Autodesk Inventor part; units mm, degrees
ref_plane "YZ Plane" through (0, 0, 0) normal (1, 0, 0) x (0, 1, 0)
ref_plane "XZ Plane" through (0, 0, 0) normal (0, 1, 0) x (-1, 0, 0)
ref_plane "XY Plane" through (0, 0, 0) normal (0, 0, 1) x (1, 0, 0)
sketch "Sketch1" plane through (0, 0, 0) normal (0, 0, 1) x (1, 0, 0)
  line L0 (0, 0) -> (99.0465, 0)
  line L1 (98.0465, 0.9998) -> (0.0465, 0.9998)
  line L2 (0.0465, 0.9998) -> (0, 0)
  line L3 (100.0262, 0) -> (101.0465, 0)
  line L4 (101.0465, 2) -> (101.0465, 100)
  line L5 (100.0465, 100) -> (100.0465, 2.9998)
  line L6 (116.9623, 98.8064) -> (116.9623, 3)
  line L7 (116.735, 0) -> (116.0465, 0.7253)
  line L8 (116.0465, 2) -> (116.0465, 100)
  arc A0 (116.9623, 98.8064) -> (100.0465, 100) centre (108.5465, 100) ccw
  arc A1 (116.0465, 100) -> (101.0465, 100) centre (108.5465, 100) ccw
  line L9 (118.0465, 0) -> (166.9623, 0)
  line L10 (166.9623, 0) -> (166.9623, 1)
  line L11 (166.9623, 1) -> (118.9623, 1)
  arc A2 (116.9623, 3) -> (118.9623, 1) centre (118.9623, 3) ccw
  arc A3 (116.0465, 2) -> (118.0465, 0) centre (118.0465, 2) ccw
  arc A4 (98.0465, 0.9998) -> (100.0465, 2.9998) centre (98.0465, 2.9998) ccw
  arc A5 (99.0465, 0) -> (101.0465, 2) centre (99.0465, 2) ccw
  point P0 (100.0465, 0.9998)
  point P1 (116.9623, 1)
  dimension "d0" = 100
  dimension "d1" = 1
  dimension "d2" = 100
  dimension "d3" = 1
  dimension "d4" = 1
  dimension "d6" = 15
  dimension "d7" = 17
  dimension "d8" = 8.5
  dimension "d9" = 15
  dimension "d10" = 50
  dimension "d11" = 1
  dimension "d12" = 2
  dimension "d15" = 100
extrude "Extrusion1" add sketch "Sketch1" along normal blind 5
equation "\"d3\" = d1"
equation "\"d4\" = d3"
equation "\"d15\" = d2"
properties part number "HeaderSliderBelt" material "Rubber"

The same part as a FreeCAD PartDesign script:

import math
import FreeCAD as App
import Part
import Sketcher

V = App.Vector

doc = App.newDocument("Part")
params = doc.addObject("Spreadsheet::Sheet", "Params")
for row, (alias, value) in enumerate([
    ("sketch1_radius", "2 mm"),
    ("sketch1_radius2", "7.5 mm"),
    ("sketch1_radius3", "8.5 mm"),
    ("sketch1_height", "1 mm"),
    ("sketch1_width", "48 mm"),
    ("pad1_length", "5 mm"),
], start=1):
    params.set(f"A{row}", alias)
    params.set(f"B{row}", "=" + value)
    params.setAlias(f"B{row}", alias)

body = doc.addObject("PartDesign::Body", "Body")

sketch1 = doc.addObject("Sketcher::SketchObject", "Sketch")
body.addObject(sketch1)
sketch1.AttachmentSupport = (doc.XY_Plane, [""])
sketch1.MapMode = "FlatFace"
sketch1.addGeometry([
    Part.LineSegment(V(0.0465, 0.9998, 0), V(0, 0, 0)),
    Part.LineSegment(V(0, 0, 0), V(99.0465, 0, 0)),
    Part.ArcOfCircle(Part.Circle(V(99.0465, 2, 0), V(0, 0, 1), 2), math.radians(-90), math.radians(0)),
    Part.LineSegment(V(101.0465, 2, 0), V(101.0465, 100, 0)),
    Part.ArcOfCircle(Part.Circle(V(108.5465, 100, 0), V(0, 0, 1), 7.5), math.radians(0), math.radians(180)),
    Part.LineSegment(V(116.0465, 100, 0), V(116.0465, 2, 0)),
    Part.ArcOfCircle(Part.Circle(V(118.0465, 2, 0), V(0, 0, 1), 2), math.radians(180), math.radians(270)),
    Part.LineSegment(V(118.0465, 0, 0), V(166.9623, 0, 0)),
    Part.LineSegment(V(166.9623, 0, 0), V(166.9623, 1, 0)),
    Part.LineSegment(V(166.9623, 1, 0), V(118.9623, 1, 0)),
    Part.ArcOfCircle(Part.Circle(V(118.9623, 3, 0), V(0, 0, 1), 2), math.radians(180), math.radians(270)),
    Part.LineSegment(V(116.9623, 3, 0), V(116.9623, 98.8064, 0)),
    Part.ArcOfCircle(Part.Circle(V(108.5465, 100, 0), V(0, 0, 1), 8.500022), math.radians(-8.072334), math.radians(180)),
    Part.LineSegment(V(100.0465, 100, 0), V(100.0465, 2.9998, 0)),
    Part.ArcOfCircle(Part.Circle(V(98.0465, 2.9998, 0), V(0, 0, 1), 2), math.radians(-90), math.radians(0)),
    Part.LineSegment(V(98.0465, 0.9998, 0), V(0.0465, 0.9998, 0)),
], False)
sketch1.addConstraint([
    Sketcher.Constraint("Coincident", 0, 2, 1, 1),
    Sketcher.Constraint("Tangent", 1, 2, 2, 1),
    Sketcher.Constraint("Tangent", 2, 2, 3, 1),
    Sketcher.Constraint("Tangent", 3, 2, 4, 2),
    Sketcher.Constraint("Tangent", 4, 1, 5, 1),
    Sketcher.Constraint("Tangent", 5, 2, 6, 1),
    Sketcher.Constraint("Tangent", 6, 2, 7, 1),
    Sketcher.Constraint("Coincident", 7, 2, 8, 1),
    Sketcher.Constraint("Coincident", 8, 2, 9, 1),
    Sketcher.Constraint("Tangent", 9, 2, 10, 2),
    Sketcher.Constraint("Tangent", 10, 1, 11, 1),
    Sketcher.Constraint("Coincident", 11, 2, 12, 1),
    Sketcher.Constraint("Tangent", 12, 2, 13, 1),
    Sketcher.Constraint("Tangent", 13, 2, 14, 2),
    Sketcher.Constraint("Tangent", 14, 1, 15, 1),
    Sketcher.Constraint("Coincident", 15, 2, 0, 1),
    Sketcher.Constraint("Horizontal", 1),
    Sketcher.Constraint("Vertical", 3),
    Sketcher.Constraint("Vertical", 5),
    Sketcher.Constraint("Horizontal", 7),
    Sketcher.Constraint("Vertical", 8),
    Sketcher.Constraint("Horizontal", 9),
    Sketcher.Constraint("Vertical", 11),
    Sketcher.Constraint("Vertical", 13),
    Sketcher.Constraint("Horizontal", 15),
    Sketcher.Constraint("Coincident", 0, 2, -1, 1),
    Sketcher.Constraint("Coincident", 12, 3, 4, 3),
    Sketcher.Constraint("Equal", 2, 6),
    Sketcher.Constraint("Equal", 6, 10),
    Sketcher.Constraint("Equal", 10, 14),
    Sketcher.Constraint("PointOnObject", 6, 2, -1),
    Sketcher.Constraint("Horizontal", 10, 3, 14, 3),
    Sketcher.Constraint("Equal", 15, 3),
    Sketcher.Constraint("Radius", 2, 2.0),
    Sketcher.Constraint("Radius", 4, 7.5),
    Sketcher.Constraint("Radius", 12, 8.5),
    Sketcher.Constraint("DistanceY", 8, 1, 8, 2, 1.0),
    Sketcher.Constraint("DistanceY", -1, 1, 4, 3, 100.0),
    Sketcher.Constraint("DistanceX", 9, 2, 9, 1, 48.0),
    Sketcher.Constraint("Distance", 0, 1.001),
    Sketcher.Constraint("DistanceX", 7, 1, 7, 2, 48.9158),
])
sketch1.setExpression("Constraints[33]", "Params.sketch1_radius")
sketch1.setExpression("Constraints[34]", "Params.sketch1_radius2")
sketch1.setExpression("Constraints[35]", "Params.sketch1_radius3")
sketch1.setExpression("Constraints[36]", "Params.sketch1_height")
sketch1.setExpression("Constraints[38]", "Params.sketch1_width")
pad1 = doc.addObject("PartDesign::Pad", "Pad")
body.addObject(pad1)
pad1.Profile = sketch1
pad1.setExpression("Length", "Params.pad1_length")

doc.recompute()
